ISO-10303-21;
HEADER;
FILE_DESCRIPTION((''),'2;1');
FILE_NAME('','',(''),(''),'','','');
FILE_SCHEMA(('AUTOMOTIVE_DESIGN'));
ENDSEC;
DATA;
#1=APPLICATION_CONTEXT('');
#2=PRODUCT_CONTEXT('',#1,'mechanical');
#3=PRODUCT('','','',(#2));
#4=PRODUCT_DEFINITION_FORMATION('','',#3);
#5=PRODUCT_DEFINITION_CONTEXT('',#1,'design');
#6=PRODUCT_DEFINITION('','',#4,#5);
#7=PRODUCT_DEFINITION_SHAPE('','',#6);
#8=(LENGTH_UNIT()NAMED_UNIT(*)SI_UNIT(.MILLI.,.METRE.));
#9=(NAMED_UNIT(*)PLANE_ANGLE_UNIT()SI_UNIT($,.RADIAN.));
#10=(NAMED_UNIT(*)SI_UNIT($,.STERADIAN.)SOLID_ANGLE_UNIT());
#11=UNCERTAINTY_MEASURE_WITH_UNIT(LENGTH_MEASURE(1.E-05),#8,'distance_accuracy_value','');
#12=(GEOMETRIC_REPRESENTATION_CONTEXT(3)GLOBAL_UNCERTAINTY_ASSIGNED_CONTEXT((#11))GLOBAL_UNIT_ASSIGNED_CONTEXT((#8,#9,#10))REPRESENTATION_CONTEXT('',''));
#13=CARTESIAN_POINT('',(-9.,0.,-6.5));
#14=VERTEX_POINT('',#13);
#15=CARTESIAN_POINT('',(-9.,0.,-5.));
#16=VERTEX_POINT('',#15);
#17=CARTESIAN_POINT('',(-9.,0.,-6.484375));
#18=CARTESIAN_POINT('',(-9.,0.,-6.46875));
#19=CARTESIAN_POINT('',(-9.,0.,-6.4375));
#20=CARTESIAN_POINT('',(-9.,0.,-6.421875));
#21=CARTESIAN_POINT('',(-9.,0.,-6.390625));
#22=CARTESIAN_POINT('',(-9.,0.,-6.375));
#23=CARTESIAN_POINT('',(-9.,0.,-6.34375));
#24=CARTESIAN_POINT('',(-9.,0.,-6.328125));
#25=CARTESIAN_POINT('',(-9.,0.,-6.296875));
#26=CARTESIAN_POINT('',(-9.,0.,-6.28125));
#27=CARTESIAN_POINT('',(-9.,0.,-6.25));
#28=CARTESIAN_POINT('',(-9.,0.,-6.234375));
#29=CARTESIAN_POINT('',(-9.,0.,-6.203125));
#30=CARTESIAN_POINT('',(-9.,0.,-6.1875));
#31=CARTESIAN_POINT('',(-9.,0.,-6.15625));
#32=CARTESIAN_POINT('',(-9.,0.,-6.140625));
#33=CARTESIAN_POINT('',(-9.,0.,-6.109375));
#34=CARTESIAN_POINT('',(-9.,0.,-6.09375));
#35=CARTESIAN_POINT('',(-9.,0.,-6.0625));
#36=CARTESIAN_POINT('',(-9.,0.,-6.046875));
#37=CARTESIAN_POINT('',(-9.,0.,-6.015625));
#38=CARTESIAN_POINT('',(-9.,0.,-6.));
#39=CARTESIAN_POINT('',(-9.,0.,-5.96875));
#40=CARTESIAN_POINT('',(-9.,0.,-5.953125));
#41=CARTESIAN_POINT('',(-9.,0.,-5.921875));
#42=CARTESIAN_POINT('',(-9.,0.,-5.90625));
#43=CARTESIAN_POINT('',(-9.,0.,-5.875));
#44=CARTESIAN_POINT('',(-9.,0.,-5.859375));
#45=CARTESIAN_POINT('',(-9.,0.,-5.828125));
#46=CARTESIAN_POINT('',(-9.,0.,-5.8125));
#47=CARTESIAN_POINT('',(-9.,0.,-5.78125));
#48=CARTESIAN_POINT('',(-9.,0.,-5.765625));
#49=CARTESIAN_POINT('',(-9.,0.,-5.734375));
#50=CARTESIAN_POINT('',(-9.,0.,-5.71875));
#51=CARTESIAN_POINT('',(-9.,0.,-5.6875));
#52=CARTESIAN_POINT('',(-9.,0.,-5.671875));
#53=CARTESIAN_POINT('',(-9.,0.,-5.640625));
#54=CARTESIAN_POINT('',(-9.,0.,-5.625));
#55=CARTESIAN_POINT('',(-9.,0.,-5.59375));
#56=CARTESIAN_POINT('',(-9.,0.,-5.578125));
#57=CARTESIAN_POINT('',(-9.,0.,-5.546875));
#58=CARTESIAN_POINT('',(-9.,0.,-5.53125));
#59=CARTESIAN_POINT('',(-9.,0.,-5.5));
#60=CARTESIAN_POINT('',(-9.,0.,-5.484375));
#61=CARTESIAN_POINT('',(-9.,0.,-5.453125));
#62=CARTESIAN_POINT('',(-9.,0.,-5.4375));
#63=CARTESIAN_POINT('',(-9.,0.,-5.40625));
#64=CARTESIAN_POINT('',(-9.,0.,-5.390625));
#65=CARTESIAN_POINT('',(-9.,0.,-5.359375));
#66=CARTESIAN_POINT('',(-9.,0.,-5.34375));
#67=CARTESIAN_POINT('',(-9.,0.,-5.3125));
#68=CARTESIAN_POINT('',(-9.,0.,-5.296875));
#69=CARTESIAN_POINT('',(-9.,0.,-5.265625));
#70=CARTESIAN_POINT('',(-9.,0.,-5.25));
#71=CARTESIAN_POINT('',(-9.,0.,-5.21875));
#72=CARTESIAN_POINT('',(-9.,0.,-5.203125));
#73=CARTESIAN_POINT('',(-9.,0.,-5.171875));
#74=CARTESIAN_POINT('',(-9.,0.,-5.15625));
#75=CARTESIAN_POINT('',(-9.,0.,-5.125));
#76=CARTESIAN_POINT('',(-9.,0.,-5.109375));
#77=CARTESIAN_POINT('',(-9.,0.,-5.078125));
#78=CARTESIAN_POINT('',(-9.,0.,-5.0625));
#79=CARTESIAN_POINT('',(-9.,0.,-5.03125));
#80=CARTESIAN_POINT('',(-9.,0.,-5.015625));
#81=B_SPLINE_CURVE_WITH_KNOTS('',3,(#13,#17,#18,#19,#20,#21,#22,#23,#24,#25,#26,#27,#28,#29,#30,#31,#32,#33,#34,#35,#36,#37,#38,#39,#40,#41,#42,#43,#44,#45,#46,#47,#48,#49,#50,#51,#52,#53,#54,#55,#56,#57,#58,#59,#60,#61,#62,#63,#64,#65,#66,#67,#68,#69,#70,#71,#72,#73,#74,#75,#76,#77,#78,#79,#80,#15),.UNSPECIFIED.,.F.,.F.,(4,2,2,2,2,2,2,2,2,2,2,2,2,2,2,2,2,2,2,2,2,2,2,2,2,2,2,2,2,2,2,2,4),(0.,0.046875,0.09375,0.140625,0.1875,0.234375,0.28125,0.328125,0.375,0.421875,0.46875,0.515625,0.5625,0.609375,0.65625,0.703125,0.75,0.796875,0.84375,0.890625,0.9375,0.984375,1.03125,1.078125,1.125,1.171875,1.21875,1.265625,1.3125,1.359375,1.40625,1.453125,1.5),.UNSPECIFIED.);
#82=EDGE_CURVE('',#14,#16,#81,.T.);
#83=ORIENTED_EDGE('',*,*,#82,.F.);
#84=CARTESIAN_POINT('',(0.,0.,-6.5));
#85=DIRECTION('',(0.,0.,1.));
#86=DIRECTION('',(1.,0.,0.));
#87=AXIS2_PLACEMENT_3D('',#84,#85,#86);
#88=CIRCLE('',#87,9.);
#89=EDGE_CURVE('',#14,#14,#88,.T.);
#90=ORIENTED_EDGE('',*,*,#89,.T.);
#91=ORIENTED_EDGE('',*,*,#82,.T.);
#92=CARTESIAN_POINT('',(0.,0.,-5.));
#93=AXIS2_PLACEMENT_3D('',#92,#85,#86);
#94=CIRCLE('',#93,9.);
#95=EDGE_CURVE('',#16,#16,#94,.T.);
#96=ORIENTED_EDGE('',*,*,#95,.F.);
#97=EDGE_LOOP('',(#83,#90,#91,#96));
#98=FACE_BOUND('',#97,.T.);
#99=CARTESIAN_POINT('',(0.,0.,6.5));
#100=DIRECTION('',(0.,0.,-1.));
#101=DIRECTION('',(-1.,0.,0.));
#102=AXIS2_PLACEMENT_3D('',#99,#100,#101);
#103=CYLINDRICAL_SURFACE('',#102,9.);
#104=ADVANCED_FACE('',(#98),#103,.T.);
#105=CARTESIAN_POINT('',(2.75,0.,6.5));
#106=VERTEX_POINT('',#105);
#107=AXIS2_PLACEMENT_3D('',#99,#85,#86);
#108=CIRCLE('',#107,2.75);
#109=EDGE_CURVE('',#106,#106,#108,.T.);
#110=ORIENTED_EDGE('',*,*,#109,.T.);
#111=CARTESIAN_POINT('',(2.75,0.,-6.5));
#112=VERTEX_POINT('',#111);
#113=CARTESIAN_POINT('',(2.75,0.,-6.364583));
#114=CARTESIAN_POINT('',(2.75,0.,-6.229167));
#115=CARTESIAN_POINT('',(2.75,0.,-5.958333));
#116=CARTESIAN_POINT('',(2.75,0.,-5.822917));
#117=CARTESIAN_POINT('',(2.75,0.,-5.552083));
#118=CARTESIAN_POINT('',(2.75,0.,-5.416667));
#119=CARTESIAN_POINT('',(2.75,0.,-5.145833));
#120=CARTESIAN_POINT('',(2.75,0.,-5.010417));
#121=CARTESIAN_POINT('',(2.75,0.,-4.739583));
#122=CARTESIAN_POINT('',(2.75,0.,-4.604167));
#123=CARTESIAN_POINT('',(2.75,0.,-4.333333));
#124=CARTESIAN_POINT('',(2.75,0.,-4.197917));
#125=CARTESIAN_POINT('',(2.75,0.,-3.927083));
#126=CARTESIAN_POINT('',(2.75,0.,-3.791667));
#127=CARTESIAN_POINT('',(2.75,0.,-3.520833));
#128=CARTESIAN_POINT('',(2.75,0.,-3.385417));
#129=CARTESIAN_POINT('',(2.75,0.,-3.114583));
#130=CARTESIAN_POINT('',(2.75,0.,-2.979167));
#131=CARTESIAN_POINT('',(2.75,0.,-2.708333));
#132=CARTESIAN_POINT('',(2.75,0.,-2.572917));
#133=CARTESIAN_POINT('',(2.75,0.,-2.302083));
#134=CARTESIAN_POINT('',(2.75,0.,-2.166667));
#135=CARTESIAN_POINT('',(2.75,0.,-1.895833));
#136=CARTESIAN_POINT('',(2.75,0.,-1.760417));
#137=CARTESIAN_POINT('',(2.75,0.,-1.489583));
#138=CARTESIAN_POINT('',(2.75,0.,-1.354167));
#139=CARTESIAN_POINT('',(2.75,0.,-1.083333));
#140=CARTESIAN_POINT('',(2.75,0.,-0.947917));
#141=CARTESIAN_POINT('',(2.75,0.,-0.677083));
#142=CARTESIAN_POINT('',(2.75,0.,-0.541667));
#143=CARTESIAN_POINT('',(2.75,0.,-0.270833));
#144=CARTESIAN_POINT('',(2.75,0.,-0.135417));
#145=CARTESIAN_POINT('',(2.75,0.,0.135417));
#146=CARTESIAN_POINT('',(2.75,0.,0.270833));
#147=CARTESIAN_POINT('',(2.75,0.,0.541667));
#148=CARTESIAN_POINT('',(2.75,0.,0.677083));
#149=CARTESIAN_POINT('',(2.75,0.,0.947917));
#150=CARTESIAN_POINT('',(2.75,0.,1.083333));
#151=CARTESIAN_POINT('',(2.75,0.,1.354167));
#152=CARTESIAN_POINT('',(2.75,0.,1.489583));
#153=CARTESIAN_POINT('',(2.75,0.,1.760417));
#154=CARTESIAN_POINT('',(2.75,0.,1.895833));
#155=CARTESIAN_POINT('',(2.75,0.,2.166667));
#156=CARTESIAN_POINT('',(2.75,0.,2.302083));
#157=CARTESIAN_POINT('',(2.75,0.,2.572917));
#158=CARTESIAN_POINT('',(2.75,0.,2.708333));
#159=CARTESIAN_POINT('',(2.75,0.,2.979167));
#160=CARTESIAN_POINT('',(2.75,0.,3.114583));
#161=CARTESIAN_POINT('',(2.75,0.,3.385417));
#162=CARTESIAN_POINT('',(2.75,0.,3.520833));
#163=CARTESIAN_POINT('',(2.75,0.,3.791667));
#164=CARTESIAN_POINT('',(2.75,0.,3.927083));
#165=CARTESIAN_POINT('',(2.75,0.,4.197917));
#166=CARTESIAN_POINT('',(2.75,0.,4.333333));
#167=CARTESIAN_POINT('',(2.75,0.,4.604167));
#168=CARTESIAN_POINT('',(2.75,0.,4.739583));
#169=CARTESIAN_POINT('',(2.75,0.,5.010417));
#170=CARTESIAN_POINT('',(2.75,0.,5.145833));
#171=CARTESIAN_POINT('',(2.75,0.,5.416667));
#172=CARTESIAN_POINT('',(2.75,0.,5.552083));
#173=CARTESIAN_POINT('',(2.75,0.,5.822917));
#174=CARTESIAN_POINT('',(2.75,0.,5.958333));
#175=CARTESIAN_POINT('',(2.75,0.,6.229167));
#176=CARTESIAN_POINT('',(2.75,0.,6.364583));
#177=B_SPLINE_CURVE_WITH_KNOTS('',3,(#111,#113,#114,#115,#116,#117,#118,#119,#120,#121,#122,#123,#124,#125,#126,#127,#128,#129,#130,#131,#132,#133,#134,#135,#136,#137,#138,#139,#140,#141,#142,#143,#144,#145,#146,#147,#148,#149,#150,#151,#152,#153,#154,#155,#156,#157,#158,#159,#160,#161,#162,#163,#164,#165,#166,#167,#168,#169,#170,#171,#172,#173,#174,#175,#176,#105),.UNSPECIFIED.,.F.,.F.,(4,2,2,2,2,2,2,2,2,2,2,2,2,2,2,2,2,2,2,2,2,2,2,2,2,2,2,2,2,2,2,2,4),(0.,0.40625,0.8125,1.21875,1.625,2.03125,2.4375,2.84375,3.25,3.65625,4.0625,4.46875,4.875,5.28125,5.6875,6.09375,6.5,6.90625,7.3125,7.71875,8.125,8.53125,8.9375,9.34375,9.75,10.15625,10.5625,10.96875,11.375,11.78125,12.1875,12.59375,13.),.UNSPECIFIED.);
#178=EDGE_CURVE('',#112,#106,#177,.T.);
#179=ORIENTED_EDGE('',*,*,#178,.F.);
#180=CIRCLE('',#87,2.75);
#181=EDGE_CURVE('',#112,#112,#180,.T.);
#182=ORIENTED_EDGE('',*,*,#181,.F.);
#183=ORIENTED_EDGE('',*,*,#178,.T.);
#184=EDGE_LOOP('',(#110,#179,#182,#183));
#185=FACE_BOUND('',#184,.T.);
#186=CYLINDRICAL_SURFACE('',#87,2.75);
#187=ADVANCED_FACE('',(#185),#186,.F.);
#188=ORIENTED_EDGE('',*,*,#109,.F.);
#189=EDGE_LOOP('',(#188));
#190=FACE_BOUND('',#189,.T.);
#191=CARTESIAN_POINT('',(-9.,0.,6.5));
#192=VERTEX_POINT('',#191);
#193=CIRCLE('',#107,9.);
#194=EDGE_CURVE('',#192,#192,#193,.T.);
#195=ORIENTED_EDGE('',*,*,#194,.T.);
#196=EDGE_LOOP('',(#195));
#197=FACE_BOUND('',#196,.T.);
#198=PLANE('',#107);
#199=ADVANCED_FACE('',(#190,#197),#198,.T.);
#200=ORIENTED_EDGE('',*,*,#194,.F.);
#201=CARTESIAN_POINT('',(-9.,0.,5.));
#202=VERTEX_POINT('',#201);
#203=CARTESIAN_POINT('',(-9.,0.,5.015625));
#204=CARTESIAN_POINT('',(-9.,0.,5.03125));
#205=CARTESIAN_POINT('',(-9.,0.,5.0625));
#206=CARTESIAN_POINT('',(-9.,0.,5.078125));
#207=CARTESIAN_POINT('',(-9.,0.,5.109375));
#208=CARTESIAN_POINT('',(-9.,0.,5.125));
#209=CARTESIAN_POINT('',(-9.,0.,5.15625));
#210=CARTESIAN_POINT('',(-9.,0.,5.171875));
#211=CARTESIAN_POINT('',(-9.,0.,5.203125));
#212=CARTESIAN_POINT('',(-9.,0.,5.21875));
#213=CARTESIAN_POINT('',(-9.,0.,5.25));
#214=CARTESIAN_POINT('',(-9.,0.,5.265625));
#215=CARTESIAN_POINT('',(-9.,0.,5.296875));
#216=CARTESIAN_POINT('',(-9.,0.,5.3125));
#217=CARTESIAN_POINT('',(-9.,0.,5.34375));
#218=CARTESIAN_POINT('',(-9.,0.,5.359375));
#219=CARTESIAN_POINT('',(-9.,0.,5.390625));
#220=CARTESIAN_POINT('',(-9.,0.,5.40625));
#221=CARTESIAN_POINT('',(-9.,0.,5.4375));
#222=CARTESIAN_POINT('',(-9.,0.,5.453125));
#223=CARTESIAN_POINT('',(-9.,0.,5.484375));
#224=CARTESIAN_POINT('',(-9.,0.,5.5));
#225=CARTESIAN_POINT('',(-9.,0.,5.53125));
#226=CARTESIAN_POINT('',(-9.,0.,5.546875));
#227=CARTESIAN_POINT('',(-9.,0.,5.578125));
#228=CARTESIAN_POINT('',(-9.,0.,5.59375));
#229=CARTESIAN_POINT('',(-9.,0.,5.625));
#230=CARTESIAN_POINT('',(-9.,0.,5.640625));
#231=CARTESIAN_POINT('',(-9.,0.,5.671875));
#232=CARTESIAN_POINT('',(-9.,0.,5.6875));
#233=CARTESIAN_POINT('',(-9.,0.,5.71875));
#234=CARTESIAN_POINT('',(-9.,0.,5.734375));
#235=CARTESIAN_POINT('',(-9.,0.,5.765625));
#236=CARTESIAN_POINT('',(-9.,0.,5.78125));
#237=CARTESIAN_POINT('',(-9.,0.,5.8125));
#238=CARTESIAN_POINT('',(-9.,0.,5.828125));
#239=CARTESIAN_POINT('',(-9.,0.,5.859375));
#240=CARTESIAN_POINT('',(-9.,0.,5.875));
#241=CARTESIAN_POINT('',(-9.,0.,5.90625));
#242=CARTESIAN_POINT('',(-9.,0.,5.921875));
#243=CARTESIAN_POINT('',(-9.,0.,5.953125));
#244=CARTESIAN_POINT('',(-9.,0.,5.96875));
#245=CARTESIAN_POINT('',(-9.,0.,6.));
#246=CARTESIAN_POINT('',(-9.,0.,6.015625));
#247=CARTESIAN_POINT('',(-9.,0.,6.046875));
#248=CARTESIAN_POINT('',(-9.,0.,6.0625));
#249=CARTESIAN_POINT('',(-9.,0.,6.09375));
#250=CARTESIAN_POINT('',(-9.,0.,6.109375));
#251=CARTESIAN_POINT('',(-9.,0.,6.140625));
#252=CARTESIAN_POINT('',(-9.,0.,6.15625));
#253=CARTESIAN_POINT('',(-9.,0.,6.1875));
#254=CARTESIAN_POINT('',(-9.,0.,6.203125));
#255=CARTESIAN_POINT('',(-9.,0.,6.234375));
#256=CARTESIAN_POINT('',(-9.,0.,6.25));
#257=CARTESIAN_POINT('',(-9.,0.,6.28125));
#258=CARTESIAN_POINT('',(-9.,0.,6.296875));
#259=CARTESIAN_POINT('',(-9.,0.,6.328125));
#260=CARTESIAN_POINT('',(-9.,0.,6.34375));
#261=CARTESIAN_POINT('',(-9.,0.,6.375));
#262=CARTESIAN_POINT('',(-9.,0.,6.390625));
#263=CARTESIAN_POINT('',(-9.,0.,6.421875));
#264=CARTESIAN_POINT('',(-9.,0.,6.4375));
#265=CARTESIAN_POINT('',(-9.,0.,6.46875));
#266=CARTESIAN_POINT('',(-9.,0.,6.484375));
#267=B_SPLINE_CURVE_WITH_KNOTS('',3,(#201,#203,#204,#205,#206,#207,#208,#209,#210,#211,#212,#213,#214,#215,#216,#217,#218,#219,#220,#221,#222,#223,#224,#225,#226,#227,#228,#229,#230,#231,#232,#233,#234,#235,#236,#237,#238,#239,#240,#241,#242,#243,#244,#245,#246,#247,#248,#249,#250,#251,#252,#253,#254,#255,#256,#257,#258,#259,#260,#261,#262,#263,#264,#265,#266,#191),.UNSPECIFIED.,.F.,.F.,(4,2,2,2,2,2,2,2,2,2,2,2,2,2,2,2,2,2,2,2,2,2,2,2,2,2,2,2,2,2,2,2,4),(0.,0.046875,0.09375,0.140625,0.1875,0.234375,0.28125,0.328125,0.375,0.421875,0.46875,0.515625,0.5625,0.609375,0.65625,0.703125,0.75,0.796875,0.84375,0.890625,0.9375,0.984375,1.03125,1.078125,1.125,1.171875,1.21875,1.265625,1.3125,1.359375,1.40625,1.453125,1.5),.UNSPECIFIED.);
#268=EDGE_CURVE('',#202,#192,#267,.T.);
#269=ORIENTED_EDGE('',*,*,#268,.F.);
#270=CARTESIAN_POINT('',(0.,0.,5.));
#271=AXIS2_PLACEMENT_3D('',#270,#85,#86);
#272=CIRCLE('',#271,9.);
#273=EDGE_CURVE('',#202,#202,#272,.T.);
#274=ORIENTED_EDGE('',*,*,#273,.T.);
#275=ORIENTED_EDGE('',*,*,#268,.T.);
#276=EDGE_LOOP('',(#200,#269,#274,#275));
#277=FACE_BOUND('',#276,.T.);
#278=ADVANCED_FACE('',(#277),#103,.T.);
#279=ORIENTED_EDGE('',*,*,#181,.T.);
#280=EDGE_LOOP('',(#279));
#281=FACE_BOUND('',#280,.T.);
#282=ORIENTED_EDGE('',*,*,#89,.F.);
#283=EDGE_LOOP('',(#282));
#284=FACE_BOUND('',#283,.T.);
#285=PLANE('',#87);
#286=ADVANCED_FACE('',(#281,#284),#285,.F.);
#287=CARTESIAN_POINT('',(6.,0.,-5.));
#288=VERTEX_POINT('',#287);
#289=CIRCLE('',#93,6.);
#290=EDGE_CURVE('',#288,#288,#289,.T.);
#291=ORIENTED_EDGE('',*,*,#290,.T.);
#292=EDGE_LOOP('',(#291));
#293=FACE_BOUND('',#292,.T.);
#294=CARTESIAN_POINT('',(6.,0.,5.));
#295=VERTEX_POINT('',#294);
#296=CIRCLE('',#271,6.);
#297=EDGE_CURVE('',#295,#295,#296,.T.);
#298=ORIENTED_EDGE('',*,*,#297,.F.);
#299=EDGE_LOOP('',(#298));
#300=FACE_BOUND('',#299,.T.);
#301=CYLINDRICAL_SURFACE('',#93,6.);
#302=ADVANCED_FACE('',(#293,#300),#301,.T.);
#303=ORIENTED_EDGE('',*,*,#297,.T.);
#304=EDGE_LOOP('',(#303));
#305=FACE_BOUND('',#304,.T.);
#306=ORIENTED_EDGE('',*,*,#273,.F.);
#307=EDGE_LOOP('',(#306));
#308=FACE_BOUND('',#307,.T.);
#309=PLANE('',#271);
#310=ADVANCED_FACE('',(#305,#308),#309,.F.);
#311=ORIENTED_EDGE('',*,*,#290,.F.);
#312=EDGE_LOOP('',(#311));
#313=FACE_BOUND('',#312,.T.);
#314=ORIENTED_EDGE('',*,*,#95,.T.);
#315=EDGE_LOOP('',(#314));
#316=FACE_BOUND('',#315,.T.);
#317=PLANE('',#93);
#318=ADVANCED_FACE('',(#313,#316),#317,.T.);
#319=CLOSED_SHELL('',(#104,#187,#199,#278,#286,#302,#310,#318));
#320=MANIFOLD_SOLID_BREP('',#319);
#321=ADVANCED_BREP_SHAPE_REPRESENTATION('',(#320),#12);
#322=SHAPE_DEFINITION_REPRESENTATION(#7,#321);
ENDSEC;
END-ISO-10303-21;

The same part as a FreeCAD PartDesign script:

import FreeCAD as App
import Part
import Sketcher
from FreeCAD import Vector
Q = App.Units.Quantity

doc = App.newDocument("Part")
body = doc.addObject("PartDesign::Body", "Body")

# Sketch on XY plane
sketch1 = doc.addObject("Sketcher::SketchObject", "Sketch")
body.addObject(sketch1)
sketch1.AttachmentSupport = (doc.XY_Plane, [""])
sketch1.MapMode = "FlatFace"
sketch1.addGeometry(Part.Circle(Vector(0, 0, 0), Vector(0, 0, 1), 9), False)
sketch1.addConstraint([
    Sketcher.Constraint("Coincident", 0, 3, -1, 1),
    Sketcher.Constraint("Diameter", 0, Q("18 mm")),
])
pad1 = doc.addObject("PartDesign::Pad", "Pad")
body.addObject(pad1)
pad1.Profile = sketch1
pad1.Length = 13
pad1.Midplane = True

# Sketch on XY plane
sketch2 = doc.addObject("Sketcher::SketchObject", "Sketch001")
body.addObject(sketch2)
sketch2.AttachmentSupport = (doc.XY_Plane, [""])
sketch2.MapMode = "FlatFace"
sketch2.addGeometry([
    Part.Circle(Vector(0, 0, 0), Vector(0, 0, 1), 9),
    Part.Circle(Vector(0, 0, 0), Vector(0, 0, 1), 6),
], False)
sketch2.addConstraint([
    Sketcher.Constraint("Coincident", 0, 3, -1, 1),
    Sketcher.Constraint("Coincident", 1, 3, -1, 1),
    Sketcher.Constraint("Diameter", 0, Q("18 mm")),
    Sketcher.Constraint("Diameter", 1, Q("12 mm")),
])
pocket1 = doc.addObject("PartDesign::Pocket", "Pocket")
body.addObject(pocket1)
pocket1.Profile = sketch2
pocket1.Length = 10
pocket1.Midplane = True

# Sketch on XY plane
sketch3 = doc.addObject("Sketcher::SketchObject", "Sketch002")
body.addObject(sketch3)
sketch3.AttachmentSupport = (doc.XY_Plane, [""])
sketch3.MapMode = "FlatFace"
sketch3.AttachmentOffset = App.Placement(Vector(0, 0, 6.5), App.Rotation())
sketch3.addGeometry(Part.Circle(Vector(0, 0, 0), Vector(0, 0, 1), 2.8), False)
sketch3.addConstraint([
    Sketcher.Constraint("Coincident", 0, 3, -1, 1),
    Sketcher.Constraint("Diameter", 0, Q("5.5 mm")),
])
pocket2 = doc.addObject("PartDesign::Pocket", "Pocket001")
body.addObject(pocket2)
pocket2.Profile = sketch3
pocket2.Type = "ThroughAll"

doc.recompute()
